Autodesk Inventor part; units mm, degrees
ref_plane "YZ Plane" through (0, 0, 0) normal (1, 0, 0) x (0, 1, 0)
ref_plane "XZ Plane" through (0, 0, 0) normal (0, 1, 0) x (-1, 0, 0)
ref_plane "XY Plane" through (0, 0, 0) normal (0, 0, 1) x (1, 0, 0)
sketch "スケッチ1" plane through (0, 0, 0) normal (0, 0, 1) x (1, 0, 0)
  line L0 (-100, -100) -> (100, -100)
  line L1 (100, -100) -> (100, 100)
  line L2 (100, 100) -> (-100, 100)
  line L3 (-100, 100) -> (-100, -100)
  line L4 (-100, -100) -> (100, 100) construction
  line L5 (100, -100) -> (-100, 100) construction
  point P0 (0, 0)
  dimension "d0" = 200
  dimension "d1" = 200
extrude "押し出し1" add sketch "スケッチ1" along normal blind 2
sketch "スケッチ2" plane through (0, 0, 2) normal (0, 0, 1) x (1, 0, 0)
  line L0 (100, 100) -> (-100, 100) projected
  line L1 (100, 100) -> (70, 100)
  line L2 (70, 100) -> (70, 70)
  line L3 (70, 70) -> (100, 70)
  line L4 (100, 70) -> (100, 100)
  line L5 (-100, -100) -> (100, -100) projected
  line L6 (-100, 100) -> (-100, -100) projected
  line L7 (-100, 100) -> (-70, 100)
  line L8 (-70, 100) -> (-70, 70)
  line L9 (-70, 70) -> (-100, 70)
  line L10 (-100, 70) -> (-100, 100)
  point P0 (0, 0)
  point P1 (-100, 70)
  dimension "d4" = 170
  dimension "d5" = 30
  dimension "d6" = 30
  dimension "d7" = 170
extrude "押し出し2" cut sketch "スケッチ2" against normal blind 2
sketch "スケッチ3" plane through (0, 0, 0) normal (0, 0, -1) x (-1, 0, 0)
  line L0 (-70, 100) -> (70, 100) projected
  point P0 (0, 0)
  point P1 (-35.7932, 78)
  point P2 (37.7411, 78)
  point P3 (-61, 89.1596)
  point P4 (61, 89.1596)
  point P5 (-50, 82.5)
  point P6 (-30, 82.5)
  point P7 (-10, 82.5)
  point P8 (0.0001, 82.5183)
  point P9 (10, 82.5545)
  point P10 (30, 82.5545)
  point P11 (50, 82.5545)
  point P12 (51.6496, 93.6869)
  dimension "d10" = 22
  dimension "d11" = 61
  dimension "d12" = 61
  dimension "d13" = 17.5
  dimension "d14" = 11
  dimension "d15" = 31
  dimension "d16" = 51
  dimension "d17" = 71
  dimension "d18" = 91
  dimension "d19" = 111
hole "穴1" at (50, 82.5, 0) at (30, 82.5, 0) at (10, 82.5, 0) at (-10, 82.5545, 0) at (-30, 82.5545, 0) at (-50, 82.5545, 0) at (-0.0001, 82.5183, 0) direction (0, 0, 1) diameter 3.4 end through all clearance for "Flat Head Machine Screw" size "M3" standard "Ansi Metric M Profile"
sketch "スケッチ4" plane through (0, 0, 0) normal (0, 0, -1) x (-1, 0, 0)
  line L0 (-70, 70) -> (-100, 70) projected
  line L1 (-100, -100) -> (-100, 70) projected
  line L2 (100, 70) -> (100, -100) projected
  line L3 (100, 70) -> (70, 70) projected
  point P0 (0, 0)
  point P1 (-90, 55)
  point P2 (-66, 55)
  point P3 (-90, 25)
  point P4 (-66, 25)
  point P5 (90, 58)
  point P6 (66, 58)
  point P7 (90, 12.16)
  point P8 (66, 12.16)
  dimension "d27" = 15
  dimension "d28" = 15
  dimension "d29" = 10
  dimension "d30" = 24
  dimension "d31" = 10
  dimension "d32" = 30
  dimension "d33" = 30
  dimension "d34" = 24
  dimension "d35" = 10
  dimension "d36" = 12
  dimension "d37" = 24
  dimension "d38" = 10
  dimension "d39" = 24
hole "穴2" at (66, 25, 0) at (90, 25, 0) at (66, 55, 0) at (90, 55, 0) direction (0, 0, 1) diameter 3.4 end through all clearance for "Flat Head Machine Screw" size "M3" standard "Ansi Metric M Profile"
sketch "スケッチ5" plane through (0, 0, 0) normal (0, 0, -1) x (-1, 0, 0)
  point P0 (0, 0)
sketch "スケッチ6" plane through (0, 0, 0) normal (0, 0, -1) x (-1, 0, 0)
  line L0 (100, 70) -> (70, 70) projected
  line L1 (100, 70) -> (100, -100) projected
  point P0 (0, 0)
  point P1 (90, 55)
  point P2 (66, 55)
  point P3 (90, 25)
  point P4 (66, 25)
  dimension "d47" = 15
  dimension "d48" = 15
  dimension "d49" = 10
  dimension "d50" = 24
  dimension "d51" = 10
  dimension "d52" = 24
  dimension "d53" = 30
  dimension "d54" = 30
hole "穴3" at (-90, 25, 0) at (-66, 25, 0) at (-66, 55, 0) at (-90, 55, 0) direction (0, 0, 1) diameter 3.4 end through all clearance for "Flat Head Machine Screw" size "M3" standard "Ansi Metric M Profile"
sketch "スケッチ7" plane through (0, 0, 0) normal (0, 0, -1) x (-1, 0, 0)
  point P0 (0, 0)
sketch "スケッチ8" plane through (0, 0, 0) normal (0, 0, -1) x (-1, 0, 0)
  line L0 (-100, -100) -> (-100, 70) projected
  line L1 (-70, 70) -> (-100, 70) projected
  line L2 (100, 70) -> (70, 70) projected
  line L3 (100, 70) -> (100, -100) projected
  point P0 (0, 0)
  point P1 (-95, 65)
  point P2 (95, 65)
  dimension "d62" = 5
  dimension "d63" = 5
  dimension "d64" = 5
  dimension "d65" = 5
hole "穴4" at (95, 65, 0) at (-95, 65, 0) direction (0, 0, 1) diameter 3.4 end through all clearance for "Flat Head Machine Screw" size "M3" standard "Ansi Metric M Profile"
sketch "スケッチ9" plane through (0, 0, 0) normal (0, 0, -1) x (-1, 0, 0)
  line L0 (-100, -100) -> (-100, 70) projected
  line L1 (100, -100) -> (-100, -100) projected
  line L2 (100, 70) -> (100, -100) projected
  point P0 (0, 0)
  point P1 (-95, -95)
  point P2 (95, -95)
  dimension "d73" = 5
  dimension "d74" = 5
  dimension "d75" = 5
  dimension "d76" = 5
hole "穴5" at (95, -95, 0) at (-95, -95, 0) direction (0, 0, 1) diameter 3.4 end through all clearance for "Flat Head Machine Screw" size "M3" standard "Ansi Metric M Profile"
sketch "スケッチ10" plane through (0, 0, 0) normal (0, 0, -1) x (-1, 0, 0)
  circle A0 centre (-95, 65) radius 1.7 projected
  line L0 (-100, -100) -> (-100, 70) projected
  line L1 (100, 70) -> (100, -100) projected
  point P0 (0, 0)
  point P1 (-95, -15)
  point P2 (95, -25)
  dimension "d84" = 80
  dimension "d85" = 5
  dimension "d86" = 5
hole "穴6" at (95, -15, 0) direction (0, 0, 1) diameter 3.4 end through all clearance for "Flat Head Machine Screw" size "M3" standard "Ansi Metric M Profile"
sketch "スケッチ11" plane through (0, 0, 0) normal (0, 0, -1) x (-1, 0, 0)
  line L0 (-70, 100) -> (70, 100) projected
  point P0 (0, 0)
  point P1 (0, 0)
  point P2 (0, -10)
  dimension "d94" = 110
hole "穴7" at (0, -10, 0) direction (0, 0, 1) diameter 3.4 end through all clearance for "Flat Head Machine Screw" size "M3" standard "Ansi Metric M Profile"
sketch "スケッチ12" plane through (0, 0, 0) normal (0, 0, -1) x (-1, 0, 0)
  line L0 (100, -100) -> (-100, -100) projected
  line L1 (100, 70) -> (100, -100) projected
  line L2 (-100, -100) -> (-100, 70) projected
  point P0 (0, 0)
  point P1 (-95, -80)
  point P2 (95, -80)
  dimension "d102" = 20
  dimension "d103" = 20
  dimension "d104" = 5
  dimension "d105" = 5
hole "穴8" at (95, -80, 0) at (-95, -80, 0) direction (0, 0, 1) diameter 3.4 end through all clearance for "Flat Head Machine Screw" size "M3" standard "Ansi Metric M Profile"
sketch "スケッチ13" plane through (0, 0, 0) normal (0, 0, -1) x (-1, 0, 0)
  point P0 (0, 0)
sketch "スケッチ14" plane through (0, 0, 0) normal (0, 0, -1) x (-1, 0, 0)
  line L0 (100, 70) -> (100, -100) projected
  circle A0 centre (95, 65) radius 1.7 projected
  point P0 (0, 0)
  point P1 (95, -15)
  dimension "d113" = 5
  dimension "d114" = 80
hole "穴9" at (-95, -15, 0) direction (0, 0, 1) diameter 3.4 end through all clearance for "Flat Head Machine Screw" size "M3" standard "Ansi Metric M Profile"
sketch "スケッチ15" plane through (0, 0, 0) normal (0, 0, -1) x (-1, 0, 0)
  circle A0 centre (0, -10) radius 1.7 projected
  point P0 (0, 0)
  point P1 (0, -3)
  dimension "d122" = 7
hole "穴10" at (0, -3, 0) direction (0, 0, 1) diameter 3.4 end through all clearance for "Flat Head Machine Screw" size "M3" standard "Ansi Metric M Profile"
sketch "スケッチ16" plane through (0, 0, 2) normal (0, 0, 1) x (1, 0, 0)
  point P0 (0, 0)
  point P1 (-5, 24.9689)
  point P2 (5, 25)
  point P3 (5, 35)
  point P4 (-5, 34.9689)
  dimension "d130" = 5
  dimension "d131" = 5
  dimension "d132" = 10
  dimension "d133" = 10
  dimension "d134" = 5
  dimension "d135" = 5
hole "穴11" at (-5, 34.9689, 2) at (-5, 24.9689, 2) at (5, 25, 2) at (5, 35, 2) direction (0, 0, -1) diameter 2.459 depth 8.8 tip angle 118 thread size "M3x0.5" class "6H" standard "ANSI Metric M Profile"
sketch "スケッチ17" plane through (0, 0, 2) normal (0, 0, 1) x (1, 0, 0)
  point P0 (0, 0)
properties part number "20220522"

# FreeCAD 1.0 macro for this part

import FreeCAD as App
import Part
import Sketcher
from FreeCAD import Vector
Q = App.Units.Quantity


def add_polygon(sketch, points):
    """Adds a closed chain of lines whose ends are joined by coincident constraints."""
    first, n = sketch.GeometryCount, len(points)
    for a, b in zip(points, points[1:] + points[:1]):
        sketch.addGeometry(Part.LineSegment(App.Vector(*a, 0), App.Vector(*b, 0)), False)
    for i in range(n):
        sketch.addConstraint(Sketcher.Constraint("Coincident", first + i, 2, first + (i + 1) % n, 1))

doc = App.newDocument("Part")
params = doc.addObject("Spreadsheet::Sheet", "Params")
for row, (alias, value) in enumerate([
    ("sketch1_width", "200 mm"),
    ("pad1_length", "2 mm"),
    ("sketch2_width", "30 mm"),
    ("pocket1_length", "2 mm"),
    ("sketch3_diameter", "3.4 mm"),
    ("hole_diameter", "3.4 mm"),
    ("sketch4_diameter", "3.4 mm"),
    ("hole2_diameter", "3.4 mm"),
    ("sketch5_diameter", "3.4 mm"),
    ("hole3_diameter", "3.4 mm"),
    ("sketch6_diameter", "3.4 mm"),
    ("hole4_diameter", "3.4 mm"),
    ("sketch7_diameter", "3.4 mm"),
    ("hole5_diameter", "3.4 mm"),
    ("sketch8_diameter", "3.4 mm"),
    ("hole6_diameter", "3.4 mm"),
    ("sketch9_diameter", "3.4 mm"),
    ("hole7_diameter", "3.4 mm"),
    ("sketch10_diameter", "3.4 mm"),
    ("hole8_diameter", "3.4 mm"),
    ("sketch11_diameter", "3.4 mm"),
    ("hole9_diameter", "3.4 mm"),
    ("sketch12_diameter", "3.4 mm"),
    ("hole10_diameter", "3.4 mm"),
    ("hole11_diameter", "2.459 mm"),
    ("hole11_depth", "8.8 mm"),
], start=1):
    params.set(f"A{row}", alias)
    params.set(f"B{row}", "=" + value)
    params.setAlias(f"B{row}", alias)

body = doc.addObject("PartDesign::Body", "Body")

# Sketch on XY plane
sketch1 = body.newObject("Sketcher::SketchObject", "Sketch")
sketch1.AttachmentSupport = (doc.getObject("XY_Plane"), [""])
sketch1.MapMode = "FlatFace"
add_polygon(sketch1, [(-100, 100), (-100, -100), (100, -100), (100, 100)])  # lines 0-3
sketch1.addConstraint([
    Sketcher.Constraint("Vertical", 0),
    Sketcher.Constraint("Horizontal", 1),
    Sketcher.Constraint("Vertical", 2),
    Sketcher.Constraint("Horizontal", 3),
    Sketcher.Constraint("Symmetric", 0, 2, 2, 2, -1, 1),
    Sketcher.Constraint("Equal", 3, 0),
    Sketcher.Constraint("DistanceX", 1, 1, 1, 2, Q("200 mm")),
])
sketch1.setExpression("Constraints[10]", "Params.sketch1_width")
pad1 = body.newObject("PartDesign::Pad", "Pad")
pad1.Profile = sketch1
pad1.setExpression("Length", "Params.pad1_length")

# Sketch on XY plane
sketch2 = body.newObject("Sketcher::SketchObject", "Sketch001")
sketch2.AttachmentSupport = (doc.getObject("XY_Plane"), [""])
sketch2.MapMode = "FlatFace"
sketch2.AttachmentOffset = App.Placement(Vector(0, 0, 2), App.Rotation())
add_polygon(sketch2, [(100, 70), (100, 100), (70, 100), (70, 70)])  # lines 0-3
add_polygon(sketch2, [(-70, 70), (-70, 100), (-100, 100), (-100, 70)])  # lines 4-7
sketch2.addConstraint([
    Sketcher.Constraint("Vertical", 0),
    Sketcher.Constraint("Horizontal", 1),
    Sketcher.Constraint("Vertical", 2),
    Sketcher.Constraint("Horizontal", 3),
    Sketcher.Constraint("Vertical", 4),
    Sketcher.Constraint("Horizontal", 5),
    Sketcher.Constraint("Vertical", 6),
    Sketcher.Constraint("Horizontal", 7),
    Sketcher.Constraint("Symmetric", 1, 2, 4, 2, -2),
    Sketcher.Constraint("Symmetric", 3, 2, 6, 2, -2),
    Sketcher.Constraint("Equal", 7, 0),
    Sketcher.Constraint("DistanceX", 1, 2, 1, 1, Q("30 mm")),
    Sketcher.Constraint("DistanceX", 4, 2, 0, 2, Q("170 mm")),
    Sketcher.Constraint("DistanceY", -1, 1, 0, 2, Q("100 mm")),
])
sketch2.setExpression("Constraints[19]", "Params.sketch2_width")
pocket1 = body.newObject("PartDesign::Pocket", "Pocket")
pocket1.Profile = sketch2
pocket1.setExpression("Length", "Params.pocket1_length")

# Sketch on XY plane
sketch3 = body.newObject("Sketcher::SketchObject", "Sketch002")
sketch3.AttachmentSupport = (doc.getObject("XY_Plane"), [""])
sketch3.MapMode = "FlatFace"
sketch3.addGeometry([
    Part.Circle(Vector(50, 82.5, 0), Vector(0, 0, 1), 1.7),  # 0
    Part.Circle(Vector(30, 82.5, 0), Vector(0, 0, 1), 1.7),  # 1
    Part.Circle(Vector(10, 82.5, 0), Vector(0, 0, 1), 1.7),  # 2
    Part.Circle(Vector(-10, 82.6, 0), Vector(0, 0, 1), 1.7),  # 3
    Part.Circle(Vector(-30, 82.6, 0), Vector(0, 0, 1), 1.7),  # 4
    Part.Circle(Vector(-50, 82.6, 0), Vector(0, 0, 1), 1.7),  # 5
    Part.Circle(Vector(0, 82.5, 0), Vector(0, 0, 1), 1.7),  # 6
], False)
sketch3.addConstraint([
    Sketcher.Constraint("Equal", 0, 1),
    Sketcher.Constraint("Equal", 1, 2),
    Sketcher.Constraint("Equal", 2, 3),
    Sketcher.Constraint("Equal", 3, 4),
    Sketcher.Constraint("Equal", 4, 5),
    Sketcher.Constraint("Equal", 5, 6),
    Sketcher.Constraint("PointOnObject", 6, 3, -2),
    Sketcher.Constraint("Horizontal", 0, 3, 1, 3),
    Sketcher.Constraint("Horizontal", 1, 3, 2, 3),
    Sketcher.Constraint("Horizontal", 3, 3, 4, 3),
    Sketcher.Constraint("Horizontal", 4, 3, 5, 3),
    Sketcher.Constraint("Diameter", 0, Q("3.4 mm")),
    Sketcher.Constraint("DistanceX", -1, 1, 0, 3, Q("50 mm")),
    Sketcher.Constraint("DistanceX", -1, 1, 1, 3, Q("30 mm")),
    Sketcher.Constraint("DistanceX", -1, 1, 2, 3, Q("10 mm")),
    Sketcher.Constraint("DistanceX", 3, 3, -1, 1, Q("10 mm")),
    Sketcher.Constraint("DistanceX", 4, 3, -1, 1, Q("30 mm")),
    Sketcher.Constraint("DistanceX", 5, 3, -1, 1, Q("50 mm")),
    Sketcher.Constraint("DistanceY", -1, 1, 0, 3, Q("82.5 mm")),
    Sketcher.Constraint("DistanceY", -1, 1, 3, 3, Q("82.5545 mm")),
    Sketcher.Constraint("DistanceY", -1, 1, 6, 3, Q("82.5183 mm")),
])
sketch3.setExpression("Constraints[11]", "Params.sketch3_diameter")
doc.recompute()
hole = body.newObject("PartDesign::Hole", "Hole")
hole.Profile = sketch3
hole.ThreadType = "None"
hole.setExpression("Diameter", "Params.hole_diameter")
hole.DepthType = "ThroughAll"
hole.Reversed = True

# Sketch on XY plane
sketch4 = body.newObject("Sketcher::SketchObject", "Sketch003")
sketch4.AttachmentSupport = (doc.getObject("XY_Plane"), [""])
sketch4.MapMode = "FlatFace"
sketch4.addGeometry([
    Part.Circle(Vector(66, 25, 0), Vector(0, 0, 1), 1.7),
    Part.Circle(Vector(90, 25, 0), Vector(0, 0, 1), 1.7),
    Part.Circle(Vector(66, 55, 0), Vector(0, 0, 1), 1.7),
    Part.Circle(Vector(90, 55, 0), Vector(0, 0, 1), 1.7),
], False)
sketch4.addConstraint([
    Sketcher.Constraint("Equal", 0, 1),
    Sketcher.Constraint("Equal", 1, 2),
    Sketcher.Constraint("Equal", 2, 3),
    Sketcher.Constraint("Horizontal", 0, 3, 1, 3),
    Sketcher.Constraint("Horizontal", 2, 3, 3, 3),
    Sketcher.Constraint("Vertical", 0, 3, 2, 3),
    Sketcher.Constraint("Vertical", 1, 3, 3, 3),
    Sketcher.Constraint("Diameter", 0, Q("3.4 mm")),
    Sketcher.Constraint("DistanceX", -1, 1, 0, 3, Q("66 mm")),
    Sketcher.Constraint("DistanceY", -1, 1, 0, 3, Q("25 mm")),
    Sketcher.Constraint("DistanceX", -1, 1, 1, 3, Q("90 mm")),
    Sketcher.Constraint("DistanceY", -1, 1, 2, 3, Q("55 mm")),
])
sketch4.setExpression("Constraints[7]", "Params.sketch4_diameter")
doc.recompute()
hole2 = body.newObject("PartDesign::Hole", "Hole001")
hole2.Profile = sketch4
hole2.ThreadType = "None"
hole2.setExpression("Diameter", "Params.hole2_diameter")
hole2.DepthType = "ThroughAll"
hole2.Reversed = True

# Sketch on XY plane
sketch5 = body.newObject("Sketcher::SketchObject", "Sketch004")
sketch5.AttachmentSupport = (doc.getObject("XY_Plane"), [""])
sketch5.MapMode = "FlatFace"
sketch5.addGeometry([
    Part.Circle(Vector(-90, 25, 0), Vector(0, 0, 1), 1.7),
    Part.Circle(Vector(-66, 25, 0), Vector(0, 0, 1), 1.7),
    Part.Circle(Vector(-66, 55, 0), Vector(0, 0, 1), 1.7),
    Part.Circle(Vector(-90, 55, 0), Vector(0, 0, 1), 1.7),
], False)
sketch5.addConstraint([
    Sketcher.Constraint("Equal", 0, 1),
    Sketcher.Constraint("Equal", 1, 2),
    Sketcher.Constraint("Equal", 2, 3),
    Sketcher.Constraint("Horizontal", 0, 3, 1, 3),
    Sketcher.Constraint("Horizontal", 2, 3, 3, 3),
    Sketcher.Constraint("Vertical", 1, 3, 2, 3),
    Sketcher.Constraint("Vertical", 0, 3, 3, 3),
    Sketcher.Constraint("Diameter", 0, Q("3.4 mm")),
    Sketcher.Constraint("DistanceX", 0, 3, -1, 1, Q("90 mm")),
    Sketcher.Constraint("DistanceY", -1, 1, 0, 3, Q("25 mm")),
    Sketcher.Constraint("DistanceX", 1, 3, -1, 1, Q("66 mm")),
    Sketcher.Constraint("DistanceY", -1, 1, 2, 3, Q("55 mm")),
])
sketch5.setExpression("Constraints[7]", "Params.sketch5_diameter")
doc.recompute()
hole3 = body.newObject("PartDesign::Hole", "Hole002")
hole3.Profile = sketch5
hole3.ThreadType = "None"
hole3.setExpression("Diameter", "Params.hole3_diameter")
hole3.DepthType = "ThroughAll"
hole3.Reversed = True

# Sketch on XY plane
sketch6 = body.newObject("Sketcher::SketchObject", "Sketch005")
sketch6.AttachmentSupport = (doc.getObject("XY_Plane"), [""])
sketch6.MapMode = "FlatFace"
sketch6.addGeometry([
    Part.Circle(Vector(95, 65, 0), Vector(0, 0, 1), 1.7),
    Part.Circle(Vector(-95, 65, 0), Vector(0, 0, 1), 1.7),
], False)
sketch6.addConstraint([
    Sketcher.Constraint("Equal", 0, 1),
    Sketcher.Constraint("Symmetric", 0, 3, 1, 3, -2),
    Sketcher.Constraint("Diameter", 0, Q("3.4 mm")),
    Sketcher.Constraint("DistanceX", -1, 1, 0, 3, Q("95 mm")),
    Sketcher.Constraint("DistanceY", -1, 1, 0, 3, Q("65 mm")),
])
sketch6.setExpression("Constraints[2]", "Params.sketch6_diameter")
doc.recompute()
hole4 = body.newObject("PartDesign::Hole", "Hole003")
hole4.Profile = sketch6
hole4.ThreadType = "None"
hole4.setExpression("Diameter", "Params.hole4_diameter")
hole4.DepthType = "ThroughAll"
hole4.Reversed = True

# Sketch on XY plane
sketch7 = body.newObject("Sketcher::SketchObject", "Sketch006")
sketch7.AttachmentSupport = (doc.getObject("XY_Plane"), [""])
sketch7.MapMode = "FlatFace"
sketch7.addGeometry([
    Part.Circle(Vector(95, -95, 0), Vector(0, 0, 1), 1.7),
    Part.Circle(Vector(-95, -95, 0), Vector(0, 0, 1), 1.7),
], False)
sketch7.addConstraint([
    Sketcher.Constraint("Equal", 0, 1),
    Sketcher.Constraint("Symmetric", 0, 3, 1, 3, -2),
    Sketcher.Constraint("Diameter", 0, Q("3.4 mm")),
    Sketcher.Constraint("DistanceX", -1, 1, 0, 3, Q("95 mm")),
    Sketcher.Constraint("DistanceY", 0, 3, -1, 1, Q("95 mm")),
])
sketch7.setExpression("Constraints[2]", "Params.sketch7_diameter")
doc.recompute()
hole5 = body.newObject("PartDesign::Hole", "Hole004")
hole5.Profile = sketch7
hole5.ThreadType = "None"
hole5.setExpression("Diameter", "Params.hole5_diameter")
hole5.DepthType = "ThroughAll"
hole5.Reversed = True

# Sketch on XY plane
sketch8 = body.newObject("Sketcher::SketchObject", "Sketch007")
sketch8.AttachmentSupport = (doc.getObject("XY_Plane"), [""])
sketch8.MapMode = "FlatFace"
sketch8.addGeometry(Part.Circle(Vector(95, -15, 0), Vector(0, 0, 1), 1.7), False)
sketch8.addConstraint([
    Sketcher.Constraint("Diameter", 0, Q("3.4 mm")),
    Sketcher.Constraint("DistanceX", -1, 1, 0, 3, Q("95 mm")),
    Sketcher.Constraint("DistanceY", 0, 3, -1, 1, Q("15 mm")),
])
sketch8.setExpression("Constraints[0]", "Params.sketch8_diameter")
doc.recompute()
hole6 = body.newObject("PartDesign::Hole", "Hole005")
hole6.Profile = sketch8
hole6.ThreadType = "None"
hole6.setExpression("Diameter", "Params.hole6_diameter")
hole6.DepthType = "ThroughAll"
hole6.Reversed = True

# Sketch on XY plane
sketch9 = body.newObject("Sketcher::SketchObject", "Sketch008")
sketch9.AttachmentSupport = (doc.getObject("XY_Plane"), [""])
sketch9.MapMode = "FlatFace"
sketch9.addGeometry(Part.Circle(Vector(0, -10, 0), Vector(0, 0, 1), 1.7), False)
sketch9.addConstraint([
    Sketcher.Constraint("PointOnObject", 0, 3, -2),
    Sketcher.Constraint("Diameter", 0, Q("3.4 mm")),
    Sketcher.Constraint("DistanceY", 0, 3, -1, 1, Q("10 mm")),
])
sketch9.setExpression("Constraints[1]", "Params.sketch9_diameter")
doc.recompute()
hole7 = body.newObject("PartDesign::Hole", "Hole006")
hole7.Profile = sketch9
hole7.ThreadType = "None"
hole7.setExpression("Diameter", "Params.hole7_diameter")
hole7.DepthType = "ThroughAll"
hole7.Reversed = True

# Sketch on XY plane
sketch10 = body.newObject("Sketcher::SketchObject", "Sketch009")
sketch10.AttachmentSupport = (doc.getObject("XY_Plane"), [""])
sketch10.MapMode = "FlatFace"
sketch10.addGeometry([
    Part.Circle(Vector(95, -80, 0), Vector(0, 0, 1), 1.7),
    Part.Circle(Vector(-95, -80, 0), Vector(0, 0, 1), 1.7),
], False)
sketch10.addConstraint([
    Sketcher.Constraint("Equal", 0, 1),
    Sketcher.Constraint("Symmetric", 0, 3, 1, 3, -2),
    Sketcher.Constraint("Diameter", 0, Q("3.4 mm")),
    Sketcher.Constraint("DistanceX", -1, 1, 0, 3, Q("95 mm")),
    Sketcher.Constraint("DistanceY", 0, 3, -1, 1, Q("80 mm")),
])
sketch10.setExpression("Constraints[2]", "Params.sketch10_diameter")
doc.recompute()
hole8 = body.newObject("PartDesign::Hole", "Hole007")
hole8.Profile = sketch10
hole8.ThreadType = "None"
hole8.setExpression("Diameter", "Params.hole8_diameter")
hole8.DepthType = "ThroughAll"
hole8.Reversed = True

# Sketch on XY plane
sketch11 = body.newObject("Sketcher::SketchObject", "Sketch010")
sketch11.AttachmentSupport = (doc.getObject("XY_Plane"), [""])
sketch11.MapMode = "FlatFace"
sketch11.addGeometry(Part.Circle(Vector(-95, -15, 0), Vector(0, 0, 1), 1.7), False)
sketch11.addConstraint([
    Sketcher.Constraint("Diameter", 0, Q("3.4 mm")),
    Sketcher.Constraint("DistanceX", 0, 3, -1, 1, Q("95 mm")),
    Sketcher.Constraint("DistanceY", 0, 3, -1, 1, Q("15 mm")),
])
sketch11.setExpression("Constraints[0]", "Params.sketch11_diameter")
doc.recompute()
hole9 = body.newObject("PartDesign::Hole", "Hole008")
hole9.Profile = sketch11
hole9.ThreadType = "None"
hole9.setExpression("Diameter", "Params.hole9_diameter")
hole9.DepthType = "ThroughAll"
hole9.Reversed = True

# Sketch on XY plane
sketch12 = body.newObject("Sketcher::SketchObject", "Sketch011")
sketch12.AttachmentSupport = (doc.getObject("XY_Plane"), [""])
sketch12.MapMode = "FlatFace"
sketch12.addGeometry(Part.Circle(Vector(0, -3, 0), Vector(0, 0, 1), 1.7), False)
sketch12.addConstraint([
    Sketcher.Constraint("PointOnObject", 0, 3, -2),
    Sketcher.Constraint("Diameter", 0, Q("3.4 mm")),
    Sketcher.Constraint("DistanceY", 0, 3, -1, 1, Q("3 mm")),
])
sketch12.setExpression("Constraints[1]", "Params.sketch12_diameter")
doc.recompute()
hole10 = body.newObject("PartDesign::Hole", "Hole009")
hole10.Profile = sketch12
hole10.ThreadType = "None"
hole10.setExpression("Diameter", "Params.hole10_diameter")
hole10.DepthType = "ThroughAll"
hole10.Reversed = True

# Sketch on XY plane
sketch13 = body.newObject("Sketcher::SketchObject", "Sketch012")
sketch13.AttachmentSupport = (doc.getObject("XY_Plane"), [""])
sketch13.MapMode = "FlatFace"
sketch13.AttachmentOffset = App.Placement(Vector(0, 0, 2), App.Rotation())
sketch13.addGeometry([
    Part.Circle(Vector(-5, 35, 0), Vector(0, 0, 1), 1.2),
    Part.Circle(Vector(-5, 25, 0), Vector(0, 0, 1), 1.2),
    Part.Circle(Vector(5, 25, 0), Vector(0, 0, 1), 1.2),
    Part.Circle(Vector(5, 35, 0), Vector(0, 0, 1), 1.2),
], False)
sketch13.addConstraint([
    Sketcher.Constraint("Equal", 0, 1),
    Sketcher.Constraint("Equal", 1, 2),
    Sketcher.Constraint("Equal", 2, 3),
    Sketcher.Constraint("Vertical", 0, 3, 1, 3),
    Sketcher.Constraint("Vertical", 2, 3, 3, 3),
    Sketcher.Constraint("Diameter", 0, Q("2.459 mm")),
    Sketcher.Constraint("DistanceX", 0, 3, -1, 1, Q("5 mm")),
    Sketcher.Constraint("DistanceX", -1, 1, 2, 3, Q("5 mm")),
    Sketcher.Constraint("DistanceY", -1, 1, 2, 3, Q("25 mm")),
    Sketcher.Constraint("DistanceY", -1, 1, 3, 3, Q("35 mm")),
    Sketcher.Constraint("DistanceY", 1, 3, 0, 3, Q("10 mm")),
    Sketcher.Constraint("DistanceY", -1, 1, 0, 3, Q("34.969 mm")),
])
doc.recompute()
hole11 = body.newObject("PartDesign::Hole", "Hole010")
hole11.Profile = sketch13
hole11.ThreadType = "None"
hole11.setExpression("Diameter", "Params.hole11_diameter")
hole11.DepthType = "Dimension"
hole11.setExpression("Depth", "Params.hole11_depth")
hole11.DrillPoint = "Angled"
hole11.DrillPointAngle = 118

doc.recompute()
